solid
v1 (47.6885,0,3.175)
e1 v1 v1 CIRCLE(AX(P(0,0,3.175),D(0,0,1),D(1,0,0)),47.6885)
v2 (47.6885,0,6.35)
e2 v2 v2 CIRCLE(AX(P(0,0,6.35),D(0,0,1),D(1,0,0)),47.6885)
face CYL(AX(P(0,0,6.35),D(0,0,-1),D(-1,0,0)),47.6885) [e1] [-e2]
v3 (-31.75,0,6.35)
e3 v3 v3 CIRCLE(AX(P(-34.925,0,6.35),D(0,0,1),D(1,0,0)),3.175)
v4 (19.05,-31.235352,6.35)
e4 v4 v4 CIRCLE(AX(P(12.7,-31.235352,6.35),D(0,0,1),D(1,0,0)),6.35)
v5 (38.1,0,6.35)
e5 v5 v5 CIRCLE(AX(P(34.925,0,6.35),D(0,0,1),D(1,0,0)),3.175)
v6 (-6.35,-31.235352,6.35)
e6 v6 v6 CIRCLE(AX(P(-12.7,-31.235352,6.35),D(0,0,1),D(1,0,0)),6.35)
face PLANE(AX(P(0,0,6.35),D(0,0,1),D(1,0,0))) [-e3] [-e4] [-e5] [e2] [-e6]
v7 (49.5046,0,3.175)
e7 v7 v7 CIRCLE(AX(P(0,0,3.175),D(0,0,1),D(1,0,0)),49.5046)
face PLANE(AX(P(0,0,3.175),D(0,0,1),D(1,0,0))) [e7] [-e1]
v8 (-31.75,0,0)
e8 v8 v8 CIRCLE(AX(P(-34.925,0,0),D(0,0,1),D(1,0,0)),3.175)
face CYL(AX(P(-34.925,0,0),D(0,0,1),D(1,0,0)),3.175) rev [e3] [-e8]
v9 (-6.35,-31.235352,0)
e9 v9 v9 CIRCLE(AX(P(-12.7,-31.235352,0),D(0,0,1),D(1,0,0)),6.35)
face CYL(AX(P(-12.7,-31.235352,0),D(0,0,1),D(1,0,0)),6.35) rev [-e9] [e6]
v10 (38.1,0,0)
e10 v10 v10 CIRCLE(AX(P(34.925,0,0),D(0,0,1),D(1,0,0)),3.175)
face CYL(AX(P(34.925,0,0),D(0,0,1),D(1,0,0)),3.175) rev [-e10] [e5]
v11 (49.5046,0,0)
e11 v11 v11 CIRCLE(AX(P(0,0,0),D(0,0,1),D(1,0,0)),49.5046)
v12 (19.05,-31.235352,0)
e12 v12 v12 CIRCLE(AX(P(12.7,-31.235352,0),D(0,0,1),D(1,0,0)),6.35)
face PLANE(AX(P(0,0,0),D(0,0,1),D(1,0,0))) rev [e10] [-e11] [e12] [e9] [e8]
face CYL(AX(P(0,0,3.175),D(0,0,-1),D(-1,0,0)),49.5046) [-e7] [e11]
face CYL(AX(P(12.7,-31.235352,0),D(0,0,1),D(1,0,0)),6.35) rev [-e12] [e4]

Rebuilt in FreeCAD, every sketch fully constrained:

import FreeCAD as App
import Part
import Sketcher

V = App.Vector
Q = App.Units.Quantity

doc = App.newDocument("Part")
body = doc.addObject("PartDesign::Body", "Body")

# Sketch on XY plane
sketch1 = doc.addObject("Sketcher::SketchObject", "Sketch")
body.addObject(sketch1)
sketch1.AttachmentSupport = (doc.XY_Plane, [""])
sketch1.MapMode = "FlatFace"
sketch1.addGeometry(Part.Circle(V(0, 0, 0), V(0, 0, 1), 49.5046), False)
sketch1.addConstraint(Sketcher.Constraint("Coincident", 0, 3, -1, 1))
sketch1.addConstraint(Sketcher.Constraint("Diameter", 0, Q("3.898 in")))
pad1 = doc.addObject("PartDesign::Pad", "Pad")
body.addObject(pad1)
pad1.Profile = sketch1
pad1.Length = Q("0.125 in")

# Sketch on XY plane
sketch2 = doc.addObject("Sketcher::SketchObject", "Sketch001")
body.addObject(sketch2)
sketch2.AttachmentSupport = (doc.XY_Plane, [""])
sketch2.MapMode = "FlatFace"
sketch2.AttachmentOffset = App.Placement(V(0, 0, 0.125 * 25.4), App.Rotation())
sketch2.addGeometry(Part.Circle(V(0, 0, 0), V(0, 0, 1), 47.6885), False)
sketch2.addConstraint(Sketcher.Constraint("Coincident", 0, 3, -1, 1))
sketch2.addConstraint(Sketcher.Constraint("Diameter", 0, Q("3.755 in")))
pad2 = doc.addObject("PartDesign::Pad", "Pad001")
body.addObject(pad2)
pad2.Profile = sketch2
pad2.Length = Q("0.125 in")

# Sketch on XY plane
sketch3 = doc.addObject("Sketcher::SketchObject", "Sketch002")
body.addObject(sketch3)
sketch3.AttachmentSupport = (doc.XY_Plane, [""])
sketch3.MapMode = "FlatFace"
sketch3.AttachmentOffset = App.Placement(V(0, 0, 0.25 * 25.4), App.Rotation())
sketch3.addGeometry(Part.Circle(V(-12.7, -31.235352, 0), V(0, 0, 1), 6.35), False)
sketch3.addGeometry(Part.Circle(V(12.7, -31.235352, 0), V(0, 0, 1), 6.35), False)
sketch3.addGeometry(Part.Circle(V(-34.925, 0, 0), V(0, 0, 1), 3.175), False)
sketch3.addGeometry(Part.Circle(V(34.925, 0, 0), V(0, 0, 1), 3.175), False)
sketch3.addConstraint(Sketcher.Constraint("Equal", 0, 1))
sketch3.addConstraint(Sketcher.Constraint("Equal", 2, 3))
sketch3.addConstraint(Sketcher.Constraint("Symmetric", 2, 3, 3, 3, -1, 1))
sketch3.addConstraint(Sketcher.Constraint("Symmetric", 0, 3, 1, 3, -2))
sketch3.addConstraint(Sketcher.Constraint("PointOnObject", 2, 3, -1))
sketch3.addConstraint(Sketcher.Constraint("Diameter", 0, Q("0.5 in")))
sketch3.addConstraint(Sketcher.Constraint("Diameter", 2, Q("0.25 in")))
sketch3.addConstraint(Sketcher.Constraint("DistanceX", 0, 3, 1, 3, Q("1 in")))
sketch3.addConstraint(Sketcher.Constraint("DistanceX", 2, 3, 3, 3, Q("2.75 in")))
sketch3.addConstraint(Sketcher.Constraint("DistanceY", 0, 3, -1, 1, Q("31.235352 mm")))
pocket1 = doc.addObject("PartDesign::Pocket", "Pocket")
body.addObject(pocket1)
pocket1.Profile = sketch3
pocket1.Type = "ThroughAll"

doc.recompute()
